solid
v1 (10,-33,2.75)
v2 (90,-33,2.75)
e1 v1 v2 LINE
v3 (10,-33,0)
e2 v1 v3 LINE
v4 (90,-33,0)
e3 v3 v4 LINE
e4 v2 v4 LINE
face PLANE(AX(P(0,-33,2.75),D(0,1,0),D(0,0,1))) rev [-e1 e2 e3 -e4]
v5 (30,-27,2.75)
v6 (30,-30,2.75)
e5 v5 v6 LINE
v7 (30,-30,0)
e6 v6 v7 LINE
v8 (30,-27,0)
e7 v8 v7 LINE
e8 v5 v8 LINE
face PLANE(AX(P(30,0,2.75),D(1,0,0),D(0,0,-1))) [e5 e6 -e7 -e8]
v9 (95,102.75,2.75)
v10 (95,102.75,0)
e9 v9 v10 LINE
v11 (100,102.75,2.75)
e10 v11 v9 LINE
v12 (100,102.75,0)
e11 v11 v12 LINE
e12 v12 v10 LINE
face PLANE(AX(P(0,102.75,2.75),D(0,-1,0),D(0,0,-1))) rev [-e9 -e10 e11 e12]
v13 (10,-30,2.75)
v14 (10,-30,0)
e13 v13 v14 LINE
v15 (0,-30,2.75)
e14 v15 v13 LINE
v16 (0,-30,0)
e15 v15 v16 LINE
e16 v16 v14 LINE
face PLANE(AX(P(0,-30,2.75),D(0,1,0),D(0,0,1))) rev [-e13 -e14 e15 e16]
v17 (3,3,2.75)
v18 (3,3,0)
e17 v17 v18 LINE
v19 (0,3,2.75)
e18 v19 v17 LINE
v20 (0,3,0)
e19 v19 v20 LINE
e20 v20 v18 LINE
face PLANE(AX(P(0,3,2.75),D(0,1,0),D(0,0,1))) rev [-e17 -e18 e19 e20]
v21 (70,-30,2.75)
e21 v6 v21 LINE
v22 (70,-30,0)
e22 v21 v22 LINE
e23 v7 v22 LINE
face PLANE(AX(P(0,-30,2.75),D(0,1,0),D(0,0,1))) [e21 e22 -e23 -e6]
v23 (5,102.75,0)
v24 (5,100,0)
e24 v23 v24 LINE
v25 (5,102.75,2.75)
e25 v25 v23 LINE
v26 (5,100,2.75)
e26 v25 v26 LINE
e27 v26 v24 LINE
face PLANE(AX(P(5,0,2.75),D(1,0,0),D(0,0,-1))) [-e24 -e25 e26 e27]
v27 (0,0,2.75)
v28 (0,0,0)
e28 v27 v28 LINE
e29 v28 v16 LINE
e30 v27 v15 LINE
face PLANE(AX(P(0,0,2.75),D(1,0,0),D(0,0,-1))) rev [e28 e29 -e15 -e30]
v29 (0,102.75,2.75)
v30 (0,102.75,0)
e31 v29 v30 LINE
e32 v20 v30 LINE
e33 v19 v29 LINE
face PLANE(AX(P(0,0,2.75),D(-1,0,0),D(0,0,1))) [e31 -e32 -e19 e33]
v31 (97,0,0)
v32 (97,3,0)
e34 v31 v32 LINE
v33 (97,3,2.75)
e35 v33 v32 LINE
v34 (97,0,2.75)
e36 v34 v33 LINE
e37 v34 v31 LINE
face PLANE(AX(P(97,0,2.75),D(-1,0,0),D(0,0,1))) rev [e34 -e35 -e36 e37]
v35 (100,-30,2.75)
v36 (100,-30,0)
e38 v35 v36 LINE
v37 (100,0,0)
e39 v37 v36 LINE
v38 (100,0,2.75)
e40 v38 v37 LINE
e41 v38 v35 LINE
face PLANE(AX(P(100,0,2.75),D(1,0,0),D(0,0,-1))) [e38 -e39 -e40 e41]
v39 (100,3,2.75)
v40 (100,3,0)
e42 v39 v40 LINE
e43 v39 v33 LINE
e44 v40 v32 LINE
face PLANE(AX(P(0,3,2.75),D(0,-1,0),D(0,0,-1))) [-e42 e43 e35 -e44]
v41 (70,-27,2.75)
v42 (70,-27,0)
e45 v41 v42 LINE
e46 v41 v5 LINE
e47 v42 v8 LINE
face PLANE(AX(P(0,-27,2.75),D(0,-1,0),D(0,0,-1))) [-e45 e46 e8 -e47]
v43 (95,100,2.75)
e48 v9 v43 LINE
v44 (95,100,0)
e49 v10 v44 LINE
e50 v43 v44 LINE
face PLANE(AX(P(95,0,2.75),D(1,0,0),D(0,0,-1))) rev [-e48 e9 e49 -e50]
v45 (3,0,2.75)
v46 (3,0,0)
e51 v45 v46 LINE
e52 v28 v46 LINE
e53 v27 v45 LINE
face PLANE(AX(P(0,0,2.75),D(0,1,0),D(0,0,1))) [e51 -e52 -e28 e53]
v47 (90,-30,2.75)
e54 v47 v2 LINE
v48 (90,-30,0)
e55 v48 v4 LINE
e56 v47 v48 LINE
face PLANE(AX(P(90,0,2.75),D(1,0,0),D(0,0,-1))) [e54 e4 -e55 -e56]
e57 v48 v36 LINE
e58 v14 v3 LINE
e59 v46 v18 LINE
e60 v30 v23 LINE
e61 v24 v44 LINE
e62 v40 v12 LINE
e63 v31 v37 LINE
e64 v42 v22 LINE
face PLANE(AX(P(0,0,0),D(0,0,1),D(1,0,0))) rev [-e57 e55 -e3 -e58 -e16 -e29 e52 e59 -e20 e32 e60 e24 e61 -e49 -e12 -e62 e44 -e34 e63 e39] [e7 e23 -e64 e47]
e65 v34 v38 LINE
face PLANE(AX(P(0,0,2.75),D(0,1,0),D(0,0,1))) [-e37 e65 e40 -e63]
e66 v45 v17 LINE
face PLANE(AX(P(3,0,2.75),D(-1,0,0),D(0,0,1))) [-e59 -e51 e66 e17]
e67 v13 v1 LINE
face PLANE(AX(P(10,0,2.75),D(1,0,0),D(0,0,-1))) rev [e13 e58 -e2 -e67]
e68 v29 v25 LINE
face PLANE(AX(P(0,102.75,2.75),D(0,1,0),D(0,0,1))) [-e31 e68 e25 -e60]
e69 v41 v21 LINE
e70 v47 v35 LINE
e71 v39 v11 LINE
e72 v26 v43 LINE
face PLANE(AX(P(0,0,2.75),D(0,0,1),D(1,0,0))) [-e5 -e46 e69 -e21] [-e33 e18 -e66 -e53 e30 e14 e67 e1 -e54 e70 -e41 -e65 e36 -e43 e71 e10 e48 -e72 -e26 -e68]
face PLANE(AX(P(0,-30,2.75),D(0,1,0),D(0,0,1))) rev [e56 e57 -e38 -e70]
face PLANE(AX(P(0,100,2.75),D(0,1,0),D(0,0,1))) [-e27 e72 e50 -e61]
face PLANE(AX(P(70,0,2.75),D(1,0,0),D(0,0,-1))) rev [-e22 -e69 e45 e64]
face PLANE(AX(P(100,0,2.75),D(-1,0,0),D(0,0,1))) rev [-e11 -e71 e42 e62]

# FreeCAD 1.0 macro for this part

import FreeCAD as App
import Part
import Sketcher
from FreeCAD import Vector
Q = App.Units.Quantity

doc = App.newDocument("Part")
body = doc.addObject("PartDesign::Body", "Body")

# Sketch on XY plane
sketch1 = doc.addObject("Sketcher::SketchObject", "Sketch")
body.addObject(sketch1)
sketch1.AttachmentSupport = (doc.XY_Plane, [""])
sketch1.MapMode = "FlatFace"
sketch1.addGeometry([
    Part.LineSegment(Vector(100, 102.8, 0), Vector(95, 102.8, 0)),  # 0
    Part.LineSegment(Vector(95, 102.8, 0), Vector(95, 100, 0)),  # 1
    Part.LineSegment(Vector(95, 100, 0), Vector(5, 100, 0)),  # 2
    Part.LineSegment(Vector(5, 100, 0), Vector(5, 102.8, 0)),  # 3
    Part.LineSegment(Vector(5, 102.8, 0), Vector(0, 102.8, 0)),  # 4
    Part.LineSegment(Vector(0, 102.8, 0), Vector(0, 3, 0)),  # 5
    Part.LineSegment(Vector(0, 3, 0), Vector(3, 3, 0)),  # 6
    Part.LineSegment(Vector(3, 3, 0), Vector(3, 0, 0)),  # 7
    Part.LineSegment(Vector(3, 0, 0), Vector(0, 0, 0)),  # 8
    Part.LineSegment(Vector(0, 0, 0), Vector(0, -30, 0)),  # 9
    Part.LineSegment(Vector(0, -30, 0), Vector(10, -30, 0)),  # 10
    Part.LineSegment(Vector(10, -30, 0), Vector(10, -33, 0)),  # 11
    Part.LineSegment(Vector(10, -33, 0), Vector(90, -33, 0)),  # 12
    Part.LineSegment(Vector(90, -33, 0), Vector(90, -30, 0)),  # 13
    Part.LineSegment(Vector(90, -30, 0), Vector(100, -30, 0)),  # 14
    Part.LineSegment(Vector(100, -30, 0), Vector(100, 0, 0)),  # 15
    Part.LineSegment(Vector(100, 0, 0), Vector(97, 0, 0)),  # 16
    Part.LineSegment(Vector(97, 0, 0), Vector(97, 3, 0)),  # 17
    Part.LineSegment(Vector(97, 3, 0), Vector(100, 3, 0)),  # 18
    Part.LineSegment(Vector(100, 3, 0), Vector(100, 102.8, 0)),  # 19
    Part.LineSegment(Vector(30, -30, 0), Vector(30, -27, 0)),  # 20
    Part.LineSegment(Vector(30, -27, 0), Vector(70, -27, 0)),  # 21
    Part.LineSegment(Vector(70, -27, 0), Vector(70, -30, 0)),  # 22
    Part.LineSegment(Vector(70, -30, 0), Vector(30, -30, 0)),  # 23
], False)
sketch1.addConstraint([
    Sketcher.Constraint("Coincident", 0, 2, 1, 1),
    Sketcher.Constraint("Coincident", 1, 2, 2, 1),
    Sketcher.Constraint("Coincident", 2, 2, 3, 1),
    Sketcher.Constraint("Coincident", 3, 2, 4, 1),
    Sketcher.Constraint("Coincident", 4, 2, 5, 1),
    Sketcher.Constraint("Coincident", 5, 2, 6, 1),
    Sketcher.Constraint("Coincident", 6, 2, 7, 1),
    Sketcher.Constraint("Coincident", 7, 2, 8, 1),
    Sketcher.Constraint("Coincident", 8, 2, 9, 1),
    Sketcher.Constraint("Coincident", 9, 2, 10, 1),
    Sketcher.Constraint("Coincident", 10, 2, 11, 1),
    Sketcher.Constraint("Coincident", 11, 2, 12, 1),
    Sketcher.Constraint("Coincident", 12, 2, 13, 1),
    Sketcher.Constraint("Coincident", 13, 2, 14, 1),
    Sketcher.Constraint("Coincident", 14, 2, 15, 1),
    Sketcher.Constraint("Coincident", 15, 2, 16, 1),
    Sketcher.Constraint("Coincident", 16, 2, 17, 1),
    Sketcher.Constraint("Coincident", 17, 2, 18, 1),
    Sketcher.Constraint("Coincident", 18, 2, 19, 1),
    Sketcher.Constraint("Coincident", 19, 2, 0, 1),
    Sketcher.Constraint("Coincident", 20, 2, 21, 1),
    Sketcher.Constraint("Coincident", 21, 2, 22, 1),
    Sketcher.Constraint("Coincident", 22, 2, 23, 1),
    Sketcher.Constraint("Coincident", 23, 2, 20, 1),
    Sketcher.Constraint("Horizontal", 0),
    Sketcher.Constraint("Vertical", 1),
    Sketcher.Constraint("Horizontal", 2),
    Sketcher.Constraint("Vertical", 3),
    Sketcher.Constraint("Horizontal", 4),
    Sketcher.Constraint("Vertical", 5),
    Sketcher.Constraint("Horizontal", 6),
    Sketcher.Constraint("Vertical", 7),
    Sketcher.Constraint("Horizontal", 8),
    Sketcher.Constraint("Vertical", 9),
    Sketcher.Constraint("Horizontal", 10),
    Sketcher.Constraint("Vertical", 11),
    Sketcher.Constraint("Horizontal", 12),
    Sketcher.Constraint("Vertical", 13),
    Sketcher.Constraint("Horizontal", 14),
    Sketcher.Constraint("Vertical", 15),
    Sketcher.Constraint("Horizontal", 16),
    Sketcher.Constraint("Vertical", 17),
    Sketcher.Constraint("Horizontal", 18),
    Sketcher.Constraint("Vertical", 19),
    Sketcher.Constraint("Vertical", 20),
    Sketcher.Constraint("Horizontal", 21),
    Sketcher.Constraint("Vertical", 22),
    Sketcher.Constraint("Horizontal", 23),
    Sketcher.Constraint("Coincident", 8, 2, -1, 1),
    Sketcher.Constraint("PointOnObject", 4, 2, -2),
    Sketcher.Constraint("PointOnObject", 15, 2, -1),
    Sketcher.Constraint("Horizontal", 0, 2, 3, 2),
    Sketcher.Constraint("Horizontal", 10, 2, 13, 2),
    Sketcher.Constraint("Horizontal", 6, 2, 17, 2),
    Sketcher.Constraint("Horizontal", 14, 2, 22, 2),
    Sketcher.Constraint("Vertical", 15, 2, 18, 2),
    Sketcher.Constraint("Equal", 0, 4),
    Sketcher.Constraint("Equal", 10, 14),
    Sketcher.Constraint("Equal", 8, 16),
    Sketcher.Constraint("Equal", 18, 7),
    Sketcher.Constraint("Equal", 7, 11),
    Sketcher.Constraint("Equal", 17, 20),
    Sketcher.Constraint("DistanceX", 0, 2, 0, 1, Q("5 mm")),
    Sketcher.Constraint("DistanceX", 2, 2, 2, 1, Q("90 mm")),
    Sketcher.Constraint("DistanceX", 6, 1, 6, 2, Q("3 mm")),
    Sketcher.Constraint("DistanceX", 10, 1, 10, 2, Q("10 mm")),
    Sketcher.Constraint("DistanceX", 21, 1, 21, 2, Q("40 mm")),
    Sketcher.Constraint("DistanceY", 9, 2, 9, 1, Q("30 mm")),
    Sketcher.Constraint("DistanceY", -1, 1, 1, 2, Q("100 mm")),
    Sketcher.Constraint("DistanceX", -1, 1, 20, 2, Q("30 mm")),
    Sketcher.Constraint("DistanceY", 1, 2, 1, 1, Q("2.75 mm")),
])
pad1 = doc.addObject("PartDesign::Pad", "Pad")
body.addObject(pad1)
pad1.Profile = sketch1
pad1.Length = 2.75

doc.recompute()
